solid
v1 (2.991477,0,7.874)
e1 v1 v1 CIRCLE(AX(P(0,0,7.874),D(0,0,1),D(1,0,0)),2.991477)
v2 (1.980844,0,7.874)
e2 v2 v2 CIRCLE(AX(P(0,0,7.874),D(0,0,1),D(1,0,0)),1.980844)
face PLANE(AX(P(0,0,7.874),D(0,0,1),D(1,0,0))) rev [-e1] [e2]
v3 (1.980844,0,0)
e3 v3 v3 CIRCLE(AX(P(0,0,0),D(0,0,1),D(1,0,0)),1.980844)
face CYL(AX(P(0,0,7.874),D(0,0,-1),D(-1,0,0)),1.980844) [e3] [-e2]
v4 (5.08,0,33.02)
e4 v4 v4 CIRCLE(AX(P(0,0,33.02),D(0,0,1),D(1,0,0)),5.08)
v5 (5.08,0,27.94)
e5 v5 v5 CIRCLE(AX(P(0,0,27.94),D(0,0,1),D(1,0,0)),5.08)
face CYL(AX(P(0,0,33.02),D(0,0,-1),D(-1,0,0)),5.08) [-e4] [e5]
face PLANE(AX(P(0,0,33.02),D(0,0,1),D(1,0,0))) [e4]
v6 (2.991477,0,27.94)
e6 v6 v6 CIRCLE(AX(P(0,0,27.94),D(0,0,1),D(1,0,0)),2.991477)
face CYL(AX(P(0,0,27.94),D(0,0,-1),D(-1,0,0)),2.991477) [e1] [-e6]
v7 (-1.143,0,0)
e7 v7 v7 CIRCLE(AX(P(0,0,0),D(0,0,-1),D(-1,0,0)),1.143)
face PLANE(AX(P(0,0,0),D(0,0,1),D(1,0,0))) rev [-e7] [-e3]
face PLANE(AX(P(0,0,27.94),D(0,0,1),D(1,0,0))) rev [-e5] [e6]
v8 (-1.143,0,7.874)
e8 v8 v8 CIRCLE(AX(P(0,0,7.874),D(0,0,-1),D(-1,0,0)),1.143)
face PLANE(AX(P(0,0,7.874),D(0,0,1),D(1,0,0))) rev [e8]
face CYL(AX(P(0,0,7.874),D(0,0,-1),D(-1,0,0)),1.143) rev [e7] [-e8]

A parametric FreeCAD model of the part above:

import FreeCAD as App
import Part
import Sketcher
Q = App.Units.Quantity

doc = App.newDocument("Part")
params = doc.addObject("Spreadsheet::Sheet", "Params")
for row, (alias, value) in enumerate([
    ("pad1_length", "0.31 in"),
    ("sketch2_diameter", "0.09 in"),
    ("pad2_length", "0.79 in"),
    ("sketch4_diameter", "0.4 in"),
    ("pad3_length", "0.2 in"),
], start=1):
    params.set(f"A{row}", alias)
    params.set(f"B{row}", "=" + value)
    params.setAlias(f"B{row}", alias)

body = doc.addObject("PartDesign::Body", "Body")

# Sketch on XY plane
sketch1 = doc.addObject("Sketcher::SketchObject", "Sketch")
body.addObject(sketch1)
sketch1.AttachmentSupport = (doc.XY_Plane, [""])
sketch1.MapMode = "FlatFace"
sketch1.addGeometry(Part.Circle(App.Vector(0, 0, 0), App.Vector(0, 0, 1), 2), False)
sketch1.addConstraint([
    Sketcher.Constraint("Coincident", 0, 3, -1, 1),
    Sketcher.Constraint("Diameter", 0, 3.961689),
])
pad1 = doc.addObject("PartDesign::Pad", "Pad")
body.addObject(pad1)
pad1.Profile = sketch1
pad1.setExpression("Length", "Params.pad1_length")

# Sketch on XY plane
sketch2 = doc.addObject("Sketcher::SketchObject", "Sketch001")
body.addObject(sketch2)
sketch2.AttachmentSupport = (doc.XY_Plane, [""])
sketch2.MapMode = "FlatFace"
sketch2.addGeometry(Part.Circle(App.Vector(0, 0, 0), App.Vector(0, 0, 1), 1.1), False)
sketch2.addConstraint([
    Sketcher.Constraint("Coincident", 0, 3, -1, 1),
    Sketcher.Constraint("Diameter", 0, Q("0.09 in")),
])
sketch2.setExpression("Constraints[1]", "Params.sketch2_diameter")
pocket1 = doc.addObject("PartDesign::Pocket", "Pocket")
body.addObject(pocket1)
pocket1.Profile = sketch2
pocket1.Type = "ThroughAll"
pocket1.Reversed = True

# Sketch on XY plane
sketch3 = doc.addObject("Sketcher::SketchObject", "Sketch002")
body.addObject(sketch3)
sketch3.AttachmentSupport = (doc.XY_Plane, [""])
sketch3.MapMode = "FlatFace"
sketch3.AttachmentOffset = App.Placement(App.Vector(0, 0, 0.31 * 25.4), App.Rotation())
sketch3.addGeometry(Part.Circle(App.Vector(0, 0, 0), App.Vector(0, 0, 1), 3), False)
sketch3.addConstraint([
    Sketcher.Constraint("Coincident", 0, 3, -1, 1),
    Sketcher.Constraint("Diameter", 0, 5.982955),
])
pad2 = doc.addObject("PartDesign::Pad", "Pad001")
body.addObject(pad2)
pad2.Profile = sketch3
pad2.setExpression("Length", "Params.pad2_length")

# Sketch on XY plane
sketch4 = doc.addObject("Sketcher::SketchObject", "Sketch003")
body.addObject(sketch4)
sketch4.AttachmentSupport = (doc.XY_Plane, [""])
sketch4.MapMode = "FlatFace"
sketch4.AttachmentOffset = App.Placement(App.Vector(0, 0, 1.1 * 25.4), App.Rotation())
sketch4.addGeometry(Part.Circle(App.Vector(0, 0, 0), App.Vector(0, 0, 1), 5), False)
sketch4.addConstraint([
    Sketcher.Constraint("Coincident", 0, 3, -1, 1),
    Sketcher.Constraint("Diameter", 0, Q("0.4 in")),
])
sketch4.setExpression("Constraints[1]", "Params.sketch4_diameter")
pad3 = doc.addObject("PartDesign::Pad", "Pad002")
body.addObject(pad3)
pad3.Profile = sketch4
pad3.setExpression("Length", "Params.pad3_length")

doc.recompute()
